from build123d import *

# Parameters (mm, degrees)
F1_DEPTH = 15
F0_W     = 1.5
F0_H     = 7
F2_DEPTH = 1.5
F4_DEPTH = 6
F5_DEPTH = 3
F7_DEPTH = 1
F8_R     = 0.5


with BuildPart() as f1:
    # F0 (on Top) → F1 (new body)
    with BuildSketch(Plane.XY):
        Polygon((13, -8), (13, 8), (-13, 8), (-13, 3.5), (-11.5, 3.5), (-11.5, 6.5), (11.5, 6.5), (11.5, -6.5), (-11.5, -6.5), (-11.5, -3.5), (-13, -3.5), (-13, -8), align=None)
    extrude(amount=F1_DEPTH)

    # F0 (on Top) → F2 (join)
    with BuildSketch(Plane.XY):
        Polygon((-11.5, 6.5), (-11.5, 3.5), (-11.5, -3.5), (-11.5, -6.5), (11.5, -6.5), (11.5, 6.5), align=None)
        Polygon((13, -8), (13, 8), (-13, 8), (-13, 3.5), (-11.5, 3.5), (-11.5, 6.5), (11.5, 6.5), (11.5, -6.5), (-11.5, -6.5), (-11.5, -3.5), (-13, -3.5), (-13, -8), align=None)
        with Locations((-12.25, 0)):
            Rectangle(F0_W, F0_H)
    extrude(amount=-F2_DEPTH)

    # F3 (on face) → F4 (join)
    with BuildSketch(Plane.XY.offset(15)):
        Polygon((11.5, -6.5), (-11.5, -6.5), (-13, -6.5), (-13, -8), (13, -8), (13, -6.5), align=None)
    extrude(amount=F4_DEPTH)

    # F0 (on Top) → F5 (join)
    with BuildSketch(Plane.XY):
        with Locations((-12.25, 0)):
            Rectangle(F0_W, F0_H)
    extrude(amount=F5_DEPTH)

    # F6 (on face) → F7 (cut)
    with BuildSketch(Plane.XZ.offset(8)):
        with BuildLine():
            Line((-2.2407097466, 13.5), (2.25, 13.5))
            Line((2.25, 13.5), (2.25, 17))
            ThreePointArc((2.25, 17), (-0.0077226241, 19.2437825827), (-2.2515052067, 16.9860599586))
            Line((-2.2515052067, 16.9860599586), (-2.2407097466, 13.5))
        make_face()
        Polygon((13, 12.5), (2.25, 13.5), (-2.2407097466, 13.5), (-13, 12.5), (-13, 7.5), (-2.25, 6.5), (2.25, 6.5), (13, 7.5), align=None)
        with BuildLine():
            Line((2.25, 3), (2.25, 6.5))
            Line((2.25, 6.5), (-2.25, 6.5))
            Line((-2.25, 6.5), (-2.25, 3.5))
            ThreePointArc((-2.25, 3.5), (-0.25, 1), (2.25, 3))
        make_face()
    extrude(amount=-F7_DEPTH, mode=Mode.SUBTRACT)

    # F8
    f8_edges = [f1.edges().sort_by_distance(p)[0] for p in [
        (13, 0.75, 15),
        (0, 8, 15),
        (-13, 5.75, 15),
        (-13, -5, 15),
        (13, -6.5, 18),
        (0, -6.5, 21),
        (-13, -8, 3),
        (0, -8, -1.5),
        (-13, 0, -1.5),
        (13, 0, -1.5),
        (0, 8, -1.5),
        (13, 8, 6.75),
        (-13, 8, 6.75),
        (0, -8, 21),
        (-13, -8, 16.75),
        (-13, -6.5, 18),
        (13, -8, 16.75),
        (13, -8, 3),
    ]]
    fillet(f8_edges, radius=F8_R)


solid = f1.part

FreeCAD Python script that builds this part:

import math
import FreeCAD as App
import Part
import Sketcher
Q = App.Units.Quantity


def edges_at(feature, points):
    """Names of the edges that pass closest to the given points."""
    edges = feature.Shape.Edges
    near = lambda p: min(range(len(edges)), key=lambda i: edges[i].distToShape(Part.Vertex(*p))[0])
    return sorted({f"Edge{near(p) + 1}" for p in points})

doc = App.newDocument("Part")
body = doc.addObject("PartDesign::Body", "Body")

# Sketch on XY plane
sketch1 = body.newObject("Sketcher::SketchObject", "Sketch")
sketch1.AttachmentSupport = (doc.getObject("XY_Plane"), [""])
sketch1.MapMode = "FlatFace"
sketch1.addGeometry(Part.LineSegment(App.Vector(13, -8, 0), App.Vector(13, 8, 0)), False)
sketch1.addGeometry(Part.LineSegment(App.Vector(13, 8, 0), App.Vector(-13, 8, 0)), False)
sketch1.addGeometry(Part.LineSegment(App.Vector(-13, 8, 0), App.Vector(-13, 3.5, 0)), False)
sketch1.addGeometry(Part.LineSegment(App.Vector(-13, 3.5, 0), App.Vector(-11.5, 3.5, 0)), False)
sketch1.addGeometry(Part.LineSegment(App.Vector(-11.5, 3.5, 0), App.Vector(-11.5, 6.5, 0)), False)
sketch1.addGeometry(Part.LineSegment(App.Vector(-11.5, 6.5, 0), App.Vector(11.5, 6.5, 0)), False)
sketch1.addGeometry(Part.LineSegment(App.Vector(11.5, 6.5, 0), App.Vector(11.5, -6.5, 0)), False)
sketch1.addGeometry(Part.LineSegment(App.Vector(11.5, -6.5, 0), App.Vector(-11.5, -6.5, 0)), False)
sketch1.addGeometry(Part.LineSegment(App.Vector(-11.5, -6.5, 0), App.Vector(-11.5, -3.5, 0)), False)
sketch1.addGeometry(Part.LineSegment(App.Vector(-11.5, -3.5, 0), App.Vector(-13, -3.5, 0)), False)
sketch1.addGeometry(Part.LineSegment(App.Vector(-13, -3.5, 0), App.Vector(-13, -8, 0)), False)
sketch1.addGeometry(Part.LineSegment(App.Vector(-13, -8, 0), App.Vector(13, -8, 0)), False)
sketch1.addConstraint(Sketcher.Constraint("Coincident", 0, 2, 1, 1))
sketch1.addConstraint(Sketcher.Constraint("Coincident", 1, 2, 2, 1))
sketch1.addConstraint(Sketcher.Constraint("Coincident", 2, 2, 3, 1))
sketch1.addConstraint(Sketcher.Constraint("Coincident", 3, 2, 4, 1))
sketch1.addConstraint(Sketcher.Constraint("Coincident", 4, 2, 5, 1))
sketch1.addConstraint(Sketcher.Constraint("Coincident", 5, 2, 6, 1))
sketch1.addConstraint(Sketcher.Constraint("Coincident", 6, 2, 7, 1))
sketch1.addConstraint(Sketcher.Constraint("Coincident", 7, 2, 8, 1))
sketch1.addConstraint(Sketcher.Constraint("Coincident", 8, 2, 9, 1))
sketch1.addConstraint(Sketcher.Constraint("Coincident", 9, 2, 10, 1))
sketch1.addConstraint(Sketcher.Constraint("Coincident", 10, 2, 11, 1))
sketch1.addConstraint(Sketcher.Constraint("Coincident", 11, 2, 0, 1))
sketch1.addConstraint(Sketcher.Constraint("Vertical", 0))
sketch1.addConstraint(Sketcher.Constraint("Horizontal", 1))
sketch1.addConstraint(Sketcher.Constraint("Vertical", 2))
sketch1.addConstraint(Sketcher.Constraint("Horizontal", 3))
sketch1.addConstraint(Sketcher.Constraint("Vertical", 4))
sketch1.addConstraint(Sketcher.Constraint("Horizontal", 5))
sketch1.addConstraint(Sketcher.Constraint("Vertical", 6))
sketch1.addConstraint(Sketcher.Constraint("Horizontal", 7))
sketch1.addConstraint(Sketcher.Constraint("Vertical", 8))
sketch1.addConstraint(Sketcher.Constraint("Horizontal", 9))
sketch1.addConstraint(Sketcher.Constraint("Vertical", 10))
sketch1.addConstraint(Sketcher.Constraint("Horizontal", 11))
sketch1.addConstraint(Sketcher.Constraint("Symmetric", 4, 2, 6, 2, -1, 1))
sketch1.addConstraint(Sketcher.Constraint("Symmetric", 0, 2, 10, 2, -1, 1))
sketch1.addConstraint(Sketcher.Constraint("Symmetric", 3, 2, 8, 2, -1))
sketch1.addConstraint(Sketcher.Constraint("Vertical", 2, 2, 9, 2))
sketch1.addConstraint(Sketcher.Constraint("DistanceX", 1, 2, 1, 1, 26.0))
sketch1.addConstraint(Sketcher.Constraint("DistanceX", 5, 1, 5, 2, 23.0))
sketch1.addConstraint(Sketcher.Constraint("DistanceY", 0, 1, 0, 2, 16.0))
sketch1.addConstraint(Sketcher.Constraint("DistanceY", 4, 1, 4, 2, 3.0))
sketch1.addConstraint(Sketcher.Constraint("DistanceY", 6, 2, 6, 1, 13.0))
pad1 = body.newObject("PartDesign::Pad", "Pad")
pad1.Profile = sketch1
pad1.Length = 15

# Sketch on XY plane
sketch2 = body.newObject("Sketcher::SketchObject", "Sketch001")
sketch2.AttachmentSupport = (doc.getObject("XY_Plane"), [""])
sketch2.MapMode = "FlatFace"
sketch2.addGeometry(Part.LineSegment(App.Vector(-13, -8, 0), App.Vector(13, -8, 0)), False)
sketch2.addGeometry(Part.LineSegment(App.Vector(13, -8, 0), App.Vector(13, 8, 0)), False)
sketch2.addGeometry(Part.LineSegment(App.Vector(13, 8, 0), App.Vector(-13, 8, 0)), False)
sketch2.addGeometry(Part.LineSegment(App.Vector(-13, 8, 0), App.Vector(-13, -8, 0)), False)
sketch2.addConstraint(Sketcher.Constraint("Coincident", 0, 2, 1, 1))
sketch2.addConstraint(Sketcher.Constraint("Coincident", 1, 2, 2, 1))
sketch2.addConstraint(Sketcher.Constraint("Coincident", 2, 2, 3, 1))
sketch2.addConstraint(Sketcher.Constraint("Coincident", 3, 2, 0, 1))
sketch2.addConstraint(Sketcher.Constraint("Horizontal", 0))
sketch2.addConstraint(Sketcher.Constraint("Vertical", 1))
sketch2.addConstraint(Sketcher.Constraint("Horizontal", 2))
sketch2.addConstraint(Sketcher.Constraint("Vertical", 3))
sketch2.addConstraint(Sketcher.Constraint("Symmetric", 0, 2, 2, 2, -1, 1))
sketch2.addConstraint(Sketcher.Constraint("DistanceX", 0, 1, 0, 2, 26.0))
sketch2.addConstraint(Sketcher.Constraint("DistanceY", 1, 1, 1, 2, 16.0))
pad2 = body.newObject("PartDesign::Pad", "Pad001")
pad2.Profile = sketch2
pad2.Length = 1.5
pad2.Reversed = True

# Sketch on XY plane
sketch3 = body.newObject("Sketcher::SketchObject", "Sketch002")
sketch3.AttachmentSupport = (doc.getObject("XY_Plane"), [""])
sketch3.MapMode = "FlatFace"
sketch3.AttachmentOffset = App.Placement(App.Vector(0, 0, 15), App.Rotation())
sketch3.addGeometry(Part.LineSegment(App.Vector(-13, -6.5, 0), App.Vector(-13, -8, 0)), False)
sketch3.addGeometry(Part.LineSegment(App.Vector(-13, -8, 0), App.Vector(13, -8, 0)), False)
sketch3.addGeometry(Part.LineSegment(App.Vector(13, -8, 0), App.Vector(13, -6.5, 0)), False)
sketch3.addGeometry(Part.LineSegment(App.Vector(13, -6.5, 0), App.Vector(-13, -6.5, 0)), False)
sketch3.addConstraint(Sketcher.Constraint("Coincident", 0, 2, 1, 1))
sketch3.addConstraint(Sketcher.Constraint("Coincident", 1, 2, 2, 1))
sketch3.addConstraint(Sketcher.Constraint("Coincident", 2, 2, 3, 1))
sketch3.addConstraint(Sketcher.Constraint("Coincident", 3, 2, 0, 1))
sketch3.addConstraint(Sketcher.Constraint("Vertical", 0))
sketch3.addConstraint(Sketcher.Constraint("Horizontal", 1))
sketch3.addConstraint(Sketcher.Constraint("Vertical", 2))
sketch3.addConstraint(Sketcher.Constraint("Horizontal", 3))
sketch3.addConstraint(Sketcher.Constraint("DistanceX", 1, 1, 1, 2, 26.0))
sketch3.addConstraint(Sketcher.Constraint("DistanceY", 0, 2, 0, 1, 1.5))
sketch3.addConstraint(Sketcher.Constraint("DistanceX", 0, 2, -1, 1, 13.0))
sketch3.addConstraint(Sketcher.Constraint("DistanceY", 0, 2, -1, 1, 8.0))
pad3 = body.newObject("PartDesign::Pad", "Pad002")
pad3.Profile = sketch3
pad3.Length = 6

# Sketch on XY plane
sketch4 = body.newObject("Sketcher::SketchObject", "Sketch003")
sketch4.AttachmentSupport = (doc.getObject("XY_Plane"), [""])
sketch4.MapMode = "FlatFace"
sketch4.addGeometry(Part.LineSegment(App.Vector(-13, 3.5, 0), App.Vector(-13, -3.5, 0)), False)
sketch4.addGeometry(Part.LineSegment(App.Vector(-13, -3.5, 0), App.Vector(-11.5, -3.5, 0)), False)
sketch4.addGeometry(Part.LineSegment(App.Vector(-11.5, -3.5, 0), App.Vector(-11.5, 3.5, 0)), False)
sketch4.addGeometry(Part.LineSegment(App.Vector(-11.5, 3.5, 0), App.Vector(-13, 3.5, 0)), False)
sketch4.addConstraint(Sketcher.Constraint("Coincident", 0, 2, 1, 1))
sketch4.addConstraint(Sketcher.Constraint("Coincident", 1, 2, 2, 1))
sketch4.addConstraint(Sketcher.Constraint("Coincident", 2, 2, 3, 1))
sketch4.addConstraint(Sketcher.Constraint("Coincident", 3, 2, 0, 1))
sketch4.addConstraint(Sketcher.Constraint("Vertical", 0))
sketch4.addConstraint(Sketcher.Constraint("Horizontal", 1))
sketch4.addConstraint(Sketcher.Constraint("Vertical", 2))
sketch4.addConstraint(Sketcher.Constraint("Horizontal", 3))
sketch4.addConstraint(Sketcher.Constraint("DistanceY", 0, 2, 0, 1, 7.0))
sketch4.addConstraint(Sketcher.Constraint("DistanceX", 1, 1, 1, 2, 1.5))
sketch4.addConstraint(Sketcher.Constraint("DistanceX", 0, 2, -1, 1, 13.0))
sketch4.addConstraint(Sketcher.Constraint("DistanceY", 0, 2, -1, 1, 3.5))
pad4 = body.newObject("PartDesign::Pad", "Pad003")
pad4.Profile = sketch4
pad4.Length = 3

# Sketch on XZ plane
sketch5 = body.newObject("Sketcher::SketchObject", "Sketch004")
sketch5.AttachmentSupport = (doc.getObject("XZ_Plane"), [""])
sketch5.MapMode = "FlatFace"
sketch5.AttachmentOffset = App.Placement(App.Vector(0, 0, 8), App.Rotation())
sketch5.addGeometry(Part.LineSegment(App.Vector(2.2, 13.5, 0), App.Vector(2.2, 17, 0)), False)
sketch5.addGeometry(Part.ArcOfCircle(Part.Circle(App.Vector(0, 17, 0), App.Vector(0, 0, 1), 2.3), math.radians(0), math.radians(180)), False)
sketch5.addGeometry(Part.LineSegment(App.Vector(-2.3, 17, 0), App.Vector(-2.2, 13.5, 0)), False)
sketch5.addGeometry(Part.LineSegment(App.Vector(-2.2, 13.5, 0), App.Vector(-13, 12.5, 0)), False)
sketch5.addGeometry(Part.LineSegment(App.Vector(-13, 12.5, 0), App.Vector(-13, 7.5, 0)), False)
sketch5.addGeometry(Part.LineSegment(App.Vector(-13, 7.5, 0), App.Vector(-2.2, 6.5, 0)), False)
sketch5.addGeometry(Part.LineSegment(App.Vector(-2.2, 6.5, 0), App.Vector(-2.2, 3.5, 0)), False)
sketch5.addGeometry(Part.ArcOfCircle(Part.Circle(App.Vector(0, 3.2, 0), App.Vector(0, 0, 1), 2.3), math.radians(174), math.radians(354)), False)
sketch5.addGeometry(Part.LineSegment(App.Vector(2.2, 3, 0), App.Vector(2.2, 6.5, 0)), False)
sketch5.addGeometry(Part.LineSegment(App.Vector(2.2, 6.5, 0), App.Vector(13, 7.5, 0)), False)
sketch5.addGeometry(Part.LineSegment(App.Vector(13, 7.5, 0), App.Vector(13, 12.5, 0)), False)
sketch5.addGeometry(Part.LineSegment(App.Vector(13, 12.5, 0), App.Vector(2.2, 13.5, 0)), False)
sketch5.addConstraint(Sketcher.Constraint("Coincident", 0, 2, 1, 1))
sketch5.addConstraint(Sketcher.Constraint("Tangent", 1, 2, 2, 1))
sketch5.addConstraint(Sketcher.Constraint("Coincident", 2, 2, 3, 1))
sketch5.addConstraint(Sketcher.Constraint("Coincident", 3, 2, 4, 1))
sketch5.addConstraint(Sketcher.Constraint("Coincident", 4, 2, 5, 1))
sketch5.addConstraint(Sketcher.Constraint("Coincident", 5, 2, 6, 1))
sketch5.addConstraint(Sketcher.Constraint("Coincident", 6, 2, 7, 1))
sketch5.addConstraint(Sketcher.Constraint("Coincident", 7, 2, 8, 1))
sketch5.addConstraint(Sketcher.Constraint("Coincident", 8, 2, 9, 1))
sketch5.addConstraint(Sketcher.Constraint("Coincident", 9, 2, 10, 1))
sketch5.addConstraint(Sketcher.Constraint("Coincident", 10, 2, 11, 1))
sketch5.addConstraint(Sketcher.Constraint("Coincident", 11, 2, 0, 1))
sketch5.addConstraint(Sketcher.Constraint("Vertical", 0))
sketch5.addConstraint(Sketcher.Constraint("Vertical", 4))
sketch5.addConstraint(Sketcher.Constraint("Vertical", 6))
sketch5.addConstraint(Sketcher.Constraint("Vertical", 8))
sketch5.addConstraint(Sketcher.Constraint("Vertical", 10))
sketch5.addConstraint(Sketcher.Constraint("Symmetric", 5, 2, 8, 2, -2))
sketch5.addConstraint(Sketcher.Constraint("Symmetric", 4, 2, 9, 2, -2))
sketch5.addConstraint(Sketcher.Constraint("PointOnObject", 7, 3, -2))
sketch5.addConstraint(Sketcher.Constraint("Parallel", 5, 11))
sketch5.addConstraint(Sketcher.Constraint("Horizontal", 3, 2, 10, 2))
sketch5.addConstraint(Sketcher.Constraint("Horizontal", 2, 2, 11, 2))
sketch5.addConstraint(Sketcher.Constraint("Vertical", 0, 2, 7, 2))
sketch5.addConstraint(Sketcher.Constraint("Equal", 0, 8))
sketch5.addConstraint(Sketcher.Constraint("DistanceY", 4, 2, 4, 1, 5.0))
sketch5.addConstraint(Sketcher.Constraint("DistanceY", 6, 2, 6, 1, 3.0))
sketch5.addConstraint(Sketcher.Constraint("DistanceY", 0, 1, 0, 2, 3.5))
sketch5.addConstraint(Sketcher.Constraint("DistanceY", -1, 1, 0, 2, 17.0))
sketch5.addConstraint(Sketcher.Constraint("DistanceX", 3, 2, -1, 1, 13.0))
sketch5.addConstraint(Sketcher.Constraint("DistanceY", -1, 1, 7, 2, 3.0))
sketch5.addConstraint(Sketcher.Constraint("Angle", 3, Q("-174.690017 deg")))
sketch5.addConstraint(Sketcher.Constraint("DistanceX", 6, 2, 7, 2, 4.5))
sketch5.addConstraint(Sketcher.Constraint("Radius", 1, 2.250763))
sketch5.addConstraint(Sketcher.Constraint("DistanceY", -1, 1, 1, 3, 16.99303))
pocket1 = body.newObject("PartDesign::Pocket", "Pocket")
pocket1.Profile = sketch5
pocket1.Length = 1
doc.recompute()

fillet = body.newObject("PartDesign::Fillet", "Fillet")
fillet.Base = (pocket1, edges_at(pocket1, [
    (13, 0.75, 15),
    (0, 8, 15),
    (-13, 5.75, 15),
    (-13, -5, 15),
    (13, -6.5, 18),
    (0, -6.5, 21),
    (-13, -8, 3),
    (0, -8, -1.5),
    (-13, 0, -1.5),
    (13, 0, -1.5),
    (0, 8, -1.5),
    (13, 8, 6.75),
    (-13, 8, 6.75),
    (0, -8, 21),
    (-13, -8, 16.75),
    (-13, -6.5, 18),
    (13, -8, 16.75),
    (13, -8, 3),
]))
fillet.Radius = 0.5

doc.recompute()
